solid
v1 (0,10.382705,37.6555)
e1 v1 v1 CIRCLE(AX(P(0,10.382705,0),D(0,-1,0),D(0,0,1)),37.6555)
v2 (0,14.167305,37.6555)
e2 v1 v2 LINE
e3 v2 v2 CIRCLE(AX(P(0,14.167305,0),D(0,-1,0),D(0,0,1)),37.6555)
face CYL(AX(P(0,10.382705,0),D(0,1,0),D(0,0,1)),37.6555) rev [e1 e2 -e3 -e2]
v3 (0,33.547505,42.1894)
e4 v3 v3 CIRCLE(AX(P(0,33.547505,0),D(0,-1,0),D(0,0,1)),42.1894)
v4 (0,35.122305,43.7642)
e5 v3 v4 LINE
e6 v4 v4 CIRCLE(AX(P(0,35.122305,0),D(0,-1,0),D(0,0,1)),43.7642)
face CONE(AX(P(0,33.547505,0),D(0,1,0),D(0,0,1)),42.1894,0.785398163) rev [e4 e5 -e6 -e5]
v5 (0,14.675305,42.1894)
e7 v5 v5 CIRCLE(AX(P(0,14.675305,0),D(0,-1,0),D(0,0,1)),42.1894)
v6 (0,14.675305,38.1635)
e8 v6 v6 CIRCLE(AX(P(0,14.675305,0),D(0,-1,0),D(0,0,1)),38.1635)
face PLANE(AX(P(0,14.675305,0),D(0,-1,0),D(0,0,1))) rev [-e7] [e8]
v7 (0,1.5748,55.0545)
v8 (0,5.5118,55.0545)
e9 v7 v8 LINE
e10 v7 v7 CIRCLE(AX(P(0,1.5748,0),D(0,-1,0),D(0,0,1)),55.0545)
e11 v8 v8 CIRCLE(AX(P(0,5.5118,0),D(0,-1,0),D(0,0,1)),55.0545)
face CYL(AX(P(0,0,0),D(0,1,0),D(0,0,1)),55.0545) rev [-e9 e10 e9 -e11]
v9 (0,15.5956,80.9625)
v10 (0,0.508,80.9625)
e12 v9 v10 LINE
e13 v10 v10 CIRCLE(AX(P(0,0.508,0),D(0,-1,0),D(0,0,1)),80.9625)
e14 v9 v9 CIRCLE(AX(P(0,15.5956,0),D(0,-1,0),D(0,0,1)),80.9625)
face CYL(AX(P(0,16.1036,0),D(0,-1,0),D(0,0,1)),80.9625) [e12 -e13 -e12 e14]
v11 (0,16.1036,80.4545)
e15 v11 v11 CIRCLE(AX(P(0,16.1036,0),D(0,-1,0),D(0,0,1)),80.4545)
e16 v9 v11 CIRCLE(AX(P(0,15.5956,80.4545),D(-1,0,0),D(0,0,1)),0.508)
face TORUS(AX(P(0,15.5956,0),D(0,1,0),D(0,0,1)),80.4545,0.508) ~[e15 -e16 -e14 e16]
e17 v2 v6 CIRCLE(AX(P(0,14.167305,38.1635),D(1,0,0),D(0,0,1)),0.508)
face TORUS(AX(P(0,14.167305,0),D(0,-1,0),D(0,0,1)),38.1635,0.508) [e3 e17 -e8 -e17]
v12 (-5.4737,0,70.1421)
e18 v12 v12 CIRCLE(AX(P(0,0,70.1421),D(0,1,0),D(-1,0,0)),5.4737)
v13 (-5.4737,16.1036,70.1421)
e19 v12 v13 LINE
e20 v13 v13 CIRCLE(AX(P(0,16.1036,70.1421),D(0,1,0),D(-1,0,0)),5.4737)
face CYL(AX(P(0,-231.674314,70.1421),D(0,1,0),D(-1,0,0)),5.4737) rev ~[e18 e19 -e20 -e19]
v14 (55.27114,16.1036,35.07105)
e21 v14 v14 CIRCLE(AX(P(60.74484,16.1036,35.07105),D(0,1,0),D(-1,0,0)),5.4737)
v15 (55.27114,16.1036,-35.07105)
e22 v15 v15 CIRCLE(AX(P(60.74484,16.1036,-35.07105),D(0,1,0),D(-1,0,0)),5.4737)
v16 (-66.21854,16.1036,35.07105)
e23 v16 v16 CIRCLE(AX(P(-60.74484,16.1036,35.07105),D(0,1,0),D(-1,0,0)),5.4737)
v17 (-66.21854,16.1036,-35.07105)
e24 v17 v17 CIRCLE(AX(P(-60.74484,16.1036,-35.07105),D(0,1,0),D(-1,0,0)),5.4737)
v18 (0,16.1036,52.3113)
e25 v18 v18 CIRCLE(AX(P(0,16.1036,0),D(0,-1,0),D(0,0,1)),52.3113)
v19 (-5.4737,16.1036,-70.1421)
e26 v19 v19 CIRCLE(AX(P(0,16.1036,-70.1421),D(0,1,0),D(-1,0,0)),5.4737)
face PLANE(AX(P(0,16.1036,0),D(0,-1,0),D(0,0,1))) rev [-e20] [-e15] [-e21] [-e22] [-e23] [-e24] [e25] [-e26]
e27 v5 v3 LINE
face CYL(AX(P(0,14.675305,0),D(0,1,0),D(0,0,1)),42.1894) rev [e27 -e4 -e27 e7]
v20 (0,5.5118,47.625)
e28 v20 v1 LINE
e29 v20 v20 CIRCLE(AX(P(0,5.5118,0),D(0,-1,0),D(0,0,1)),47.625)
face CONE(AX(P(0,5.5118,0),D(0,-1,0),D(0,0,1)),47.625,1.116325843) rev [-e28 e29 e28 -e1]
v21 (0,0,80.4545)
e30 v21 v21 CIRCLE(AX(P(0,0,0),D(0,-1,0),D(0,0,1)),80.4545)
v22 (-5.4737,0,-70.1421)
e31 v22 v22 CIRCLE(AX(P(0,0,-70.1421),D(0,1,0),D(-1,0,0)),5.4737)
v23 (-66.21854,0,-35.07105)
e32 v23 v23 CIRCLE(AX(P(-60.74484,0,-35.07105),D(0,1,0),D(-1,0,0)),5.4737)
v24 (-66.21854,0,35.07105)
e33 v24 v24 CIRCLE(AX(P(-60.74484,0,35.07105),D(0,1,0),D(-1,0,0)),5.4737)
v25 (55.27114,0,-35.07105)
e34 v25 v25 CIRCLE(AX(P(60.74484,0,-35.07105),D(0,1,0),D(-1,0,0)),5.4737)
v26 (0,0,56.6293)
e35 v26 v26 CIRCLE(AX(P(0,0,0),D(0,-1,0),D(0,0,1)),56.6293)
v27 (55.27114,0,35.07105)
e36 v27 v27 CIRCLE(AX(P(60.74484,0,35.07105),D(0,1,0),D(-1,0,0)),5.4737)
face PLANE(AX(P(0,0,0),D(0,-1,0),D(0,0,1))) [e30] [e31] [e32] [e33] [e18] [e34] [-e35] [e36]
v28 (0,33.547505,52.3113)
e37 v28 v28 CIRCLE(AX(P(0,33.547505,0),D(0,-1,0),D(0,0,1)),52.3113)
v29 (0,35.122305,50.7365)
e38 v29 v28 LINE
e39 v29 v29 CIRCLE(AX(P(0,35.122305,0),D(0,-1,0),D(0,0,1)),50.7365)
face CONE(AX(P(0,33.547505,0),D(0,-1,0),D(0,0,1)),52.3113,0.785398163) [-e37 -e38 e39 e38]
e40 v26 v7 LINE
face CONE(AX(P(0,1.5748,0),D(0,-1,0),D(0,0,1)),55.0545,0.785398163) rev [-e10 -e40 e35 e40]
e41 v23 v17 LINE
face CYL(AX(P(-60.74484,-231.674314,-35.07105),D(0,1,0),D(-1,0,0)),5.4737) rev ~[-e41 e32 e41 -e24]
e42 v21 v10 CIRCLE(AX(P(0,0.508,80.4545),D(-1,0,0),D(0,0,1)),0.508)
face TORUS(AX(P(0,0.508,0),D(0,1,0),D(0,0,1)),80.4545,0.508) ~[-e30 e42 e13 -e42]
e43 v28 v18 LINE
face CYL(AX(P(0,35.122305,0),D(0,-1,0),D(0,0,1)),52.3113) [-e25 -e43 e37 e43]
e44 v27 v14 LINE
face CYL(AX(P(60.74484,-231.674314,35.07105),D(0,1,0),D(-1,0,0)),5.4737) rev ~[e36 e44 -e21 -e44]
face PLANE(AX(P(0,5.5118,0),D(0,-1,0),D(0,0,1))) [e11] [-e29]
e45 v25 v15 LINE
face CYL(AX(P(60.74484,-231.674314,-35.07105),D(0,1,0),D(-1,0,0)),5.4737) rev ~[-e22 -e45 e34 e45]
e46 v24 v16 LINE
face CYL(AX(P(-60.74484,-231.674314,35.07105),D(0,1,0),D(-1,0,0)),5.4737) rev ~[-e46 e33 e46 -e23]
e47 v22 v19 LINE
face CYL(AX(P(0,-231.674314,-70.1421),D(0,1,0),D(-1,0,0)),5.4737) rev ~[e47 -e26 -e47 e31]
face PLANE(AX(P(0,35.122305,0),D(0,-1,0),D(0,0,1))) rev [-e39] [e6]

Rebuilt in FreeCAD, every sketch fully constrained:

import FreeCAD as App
import Part
import Sketcher

V = App.Vector
Q = App.Units.Quantity


def edges_at(feature, points):
    """Names of the edges that pass closest to the given points."""
    edges = feature.Shape.Edges
    near = lambda p: min(range(len(edges)), key=lambda i: edges[i].distToShape(Part.Vertex(*p))[0])
    return sorted({f"Edge{near(p) + 1}" for p in points})

doc = App.newDocument("Part")
params = doc.addObject("Spreadsheet::Sheet", "Params")
for row, (alias, value) in enumerate([
    ("sketch1_height", "1.02 in"),
    ("sketch1_width", "0.634 in"),
    ("sketch1_width2", "0.217 in"),
    ("sketch1_width3", "0.169 in"),
    ("sketch1_width4", "0.805 in"),
    ("revolution_angle", "360 deg"),
    ("chamfer_size", "0.062 in"),
    ("fillet_radius", "0.02 in"),
    ("sketch2_diameter", "0.431 in"),
    ("hole_diameter", "0.431 in"),
], start=1):
    params.set(f"A{row}", alias)
    params.set(f"B{row}", "=" + value)
    params.setAlias(f"B{row}", alias)

body = doc.addObject("PartDesign::Body", "Body")

# Sketch on YZ plane
sketch1 = doc.addObject("Sketcher::SketchObject", "Sketch")
body.addObject(sketch1)
sketch1.AttachmentSupport = (doc.YZ_Plane, [""])
sketch1.MapMode = "FlatFace"
sketch1.addGeometry(Part.LineSegment(V(16.1, 81, 0), V(0, 81, 0)), False)
sketch1.addGeometry(Part.LineSegment(V(0, 81, 0), V(0, 55.1, 0)), False)
sketch1.addGeometry(Part.LineSegment(V(0, 55.1, 0), V(5.5, 55.1, 0)), False)
sketch1.addGeometry(Part.LineSegment(V(5.5, 55.1, 0), V(5.5, 47.6, 0)), False)
sketch1.addGeometry(Part.LineSegment(V(5.5, 47.6, 0), V(10.4, 37.7, 0)), False)
sketch1.addGeometry(Part.LineSegment(V(10.4, 37.7, 0), V(14.7, 37.7, 0)), False)
sketch1.addGeometry(Part.LineSegment(V(14.7, 37.7, 0), V(14.7, 42.2, 0)), False)
sketch1.addGeometry(Part.LineSegment(V(14.7, 42.2, 0), V(35.1, 42.2, 0)), False)
sketch1.addGeometry(Part.LineSegment(V(35.1, 42.2, 0), V(35.1, 52.3, 0)), False)
sketch1.addGeometry(Part.LineSegment(V(35.1, 52.3, 0), V(16.1, 52.3, 0)), False)
sketch1.addGeometry(Part.LineSegment(V(16.1, 52.3, 0), V(16.1, 81, 0)), False)
sketch1.addConstraint(Sketcher.Constraint("Coincident", 0, 2, 1, 1))
sketch1.addConstraint(Sketcher.Constraint("Coincident", 1, 2, 2, 1))
sketch1.addConstraint(Sketcher.Constraint("Coincident", 2, 2, 3, 1))
sketch1.addConstraint(Sketcher.Constraint("Coincident", 3, 2, 4, 1))
sketch1.addConstraint(Sketcher.Constraint("Coincident", 4, 2, 5, 1))
sketch1.addConstraint(Sketcher.Constraint("Coincident", 5, 2, 6, 1))
sketch1.addConstraint(Sketcher.Constraint("Coincident", 6, 2, 7, 1))
sketch1.addConstraint(Sketcher.Constraint("Coincident", 7, 2, 8, 1))
sketch1.addConstraint(Sketcher.Constraint("Coincident", 8, 2, 9, 1))
sketch1.addConstraint(Sketcher.Constraint("Coincident", 9, 2, 10, 1))
sketch1.addConstraint(Sketcher.Constraint("Coincident", 10, 2, 0, 1))
sketch1.addConstraint(Sketcher.Constraint("Horizontal", 0))
sketch1.addConstraint(Sketcher.Constraint("Vertical", 1))
sketch1.addConstraint(Sketcher.Constraint("Horizontal", 2))
sketch1.addConstraint(Sketcher.Constraint("Vertical", 3))
sketch1.addConstraint(Sketcher.Constraint("Horizontal", 5))
sketch1.addConstraint(Sketcher.Constraint("Vertical", 6))
sketch1.addConstraint(Sketcher.Constraint("Horizontal", 7))
sketch1.addConstraint(Sketcher.Constraint("Vertical", 8))
sketch1.addConstraint(Sketcher.Constraint("Horizontal", 9))
sketch1.addConstraint(Sketcher.Constraint("Vertical", 10))
sketch1.addConstraint(Sketcher.Constraint("PointOnObject", 0, 2, -2))
sketch1.addConstraint(Sketcher.Constraint("DistanceY", 1, 2, 1, 1, Q("1.02 in")))
sketch1.addConstraint(Sketcher.Constraint("DistanceX", 0, 2, 0, 1, Q("0.634 in")))
sketch1.addConstraint(Sketcher.Constraint("DistanceX", 2, 1, 2, 2, Q("0.217 in")))
sketch1.addConstraint(Sketcher.Constraint("DistanceX", 5, 1, 5, 2, Q("0.169 in")))
sketch1.addConstraint(Sketcher.Constraint("DistanceX", 7, 1, 7, 2, Q("0.805 in")))
sketch1.addConstraint(Sketcher.Constraint("DistanceY", 10, 1, 10, 2, Q("1.128 in")))
sketch1.addConstraint(Sketcher.Constraint("DistanceY", 3, 2, 3, 1, Q("0.2925 in")))
sketch1.addConstraint(Sketcher.Constraint("DistanceY", 6, 1, 6, 2, Q("0.1785 in")))
sketch1.addConstraint(Sketcher.Constraint("DistanceY", 8, 1, 8, 2, Q("0.3985 in")))
sketch1.addConstraint(Sketcher.Constraint("DistanceY", -1, 1, 0, 2, Q("3.1875 in")))
sketch1.addConstraint(Sketcher.Constraint("DistanceX", 9, 2, 9, 1, Q("19.018705 mm")))
sketch1.setExpression("Constraints[22]", "Params.sketch1_height")
sketch1.setExpression("Constraints[23]", "Params.sketch1_width")
sketch1.setExpression("Constraints[24]", "Params.sketch1_width2")
sketch1.setExpression("Constraints[25]", "Params.sketch1_width3")
sketch1.setExpression("Constraints[26]", "Params.sketch1_width4")
revolution = doc.addObject("PartDesign::Revolution", "Revolution")
body.addObject(revolution)
revolution.Profile = sketch1
revolution.ReferenceAxis = (sketch1, ["H_Axis"])
revolution.setExpression("Angle", "Params.revolution_angle")
doc.recompute()

chamfer = doc.addObject("PartDesign::Chamfer", "Chamfer")
body.addObject(chamfer)
chamfer.Base = (revolution, edges_at(revolution, [(0, 35.122, -42.189), (0, 35.122, -52.311), (0, 0, -55.054)]))
chamfer.setExpression("Size", "Params.chamfer_size")
doc.recompute()

fillet = doc.addObject("PartDesign::Fillet", "Fillet")
body.addObject(fillet)
fillet.Base = (chamfer, edges_at(chamfer, [(0, 14.675, -37.656), (0, 16.104, -80.963), (0, 0, -80.963)]))
fillet.setExpression("Radius", "Params.fillet_radius")

# Sketch on XZ plane
sketch2 = doc.addObject("Sketcher::SketchObject", "Sketch001")
body.addObject(sketch2)
sketch2.AttachmentSupport = (doc.XZ_Plane, [""])
sketch2.MapMode = "FlatFace"
sketch2.addGeometry(Part.Circle(V(0, 70, 0), V(0, 0, 1), 5), False)
sketch2.addGeometry(Part.Circle(V(61, 35, 0), V(0, 0, 1), 5), False)
sketch2.addGeometry(Part.Circle(V(61, -35, 0), V(0, 0, 1), 5), False)
sketch2.addGeometry(Part.Circle(V(0, -70, 0), V(0, 0, 1), 5), False)
sketch2.addGeometry(Part.Circle(V(-61, -35, 0), V(0, 0, 1), 5), False)
sketch2.addGeometry(Part.Circle(V(-61, 35, 0), V(0, 0, 1), 5), False)
sketch2.addConstraint(Sketcher.Constraint("Equal", 0, 1))
sketch2.addConstraint(Sketcher.Constraint("Equal", 1, 2))
sketch2.addConstraint(Sketcher.Constraint("Equal", 2, 3))
sketch2.addConstraint(Sketcher.Constraint("Equal", 3, 4))
sketch2.addConstraint(Sketcher.Constraint("Equal", 4, 5))
sketch2.addConstraint(Sketcher.Constraint("Symmetric", 0, 3, 3, 3, -1, 1))
sketch2.addConstraint(Sketcher.Constraint("Symmetric", 1, 3, 4, 3, -1, 1))
sketch2.addConstraint(Sketcher.Constraint("Symmetric", 2, 3, 5, 3, -1, 1))
sketch2.addConstraint(Sketcher.Constraint("Symmetric", 2, 3, 4, 3, -2))
sketch2.addConstraint(Sketcher.Constraint("PointOnObject", 0, 3, -2))
sketch2.addConstraint(Sketcher.Constraint("Diameter", 0, Q("0.431 in")))
sketch2.addConstraint(Sketcher.Constraint("DistanceY", 3, 3, 0, 3, Q("5.523 in")))
sketch2.addConstraint(Sketcher.Constraint("DistanceY", 2, 3, 1, 3, Q("2.7615 in")))
sketch2.addConstraint(Sketcher.Constraint("DistanceX", -1, 1, 1, 3, Q("60.74484 mm")))
sketch2.setExpression("Constraints[10]", "Params.sketch2_diameter")
doc.recompute()
hole = doc.addObject("PartDesign::Hole", "Hole")
body.addObject(hole)
hole.Profile = sketch2
hole.ThreadType = "None"
hole.setExpression("Diameter", "Params.hole_diameter")
hole.DepthType = "ThroughAll"

doc.recompute()
